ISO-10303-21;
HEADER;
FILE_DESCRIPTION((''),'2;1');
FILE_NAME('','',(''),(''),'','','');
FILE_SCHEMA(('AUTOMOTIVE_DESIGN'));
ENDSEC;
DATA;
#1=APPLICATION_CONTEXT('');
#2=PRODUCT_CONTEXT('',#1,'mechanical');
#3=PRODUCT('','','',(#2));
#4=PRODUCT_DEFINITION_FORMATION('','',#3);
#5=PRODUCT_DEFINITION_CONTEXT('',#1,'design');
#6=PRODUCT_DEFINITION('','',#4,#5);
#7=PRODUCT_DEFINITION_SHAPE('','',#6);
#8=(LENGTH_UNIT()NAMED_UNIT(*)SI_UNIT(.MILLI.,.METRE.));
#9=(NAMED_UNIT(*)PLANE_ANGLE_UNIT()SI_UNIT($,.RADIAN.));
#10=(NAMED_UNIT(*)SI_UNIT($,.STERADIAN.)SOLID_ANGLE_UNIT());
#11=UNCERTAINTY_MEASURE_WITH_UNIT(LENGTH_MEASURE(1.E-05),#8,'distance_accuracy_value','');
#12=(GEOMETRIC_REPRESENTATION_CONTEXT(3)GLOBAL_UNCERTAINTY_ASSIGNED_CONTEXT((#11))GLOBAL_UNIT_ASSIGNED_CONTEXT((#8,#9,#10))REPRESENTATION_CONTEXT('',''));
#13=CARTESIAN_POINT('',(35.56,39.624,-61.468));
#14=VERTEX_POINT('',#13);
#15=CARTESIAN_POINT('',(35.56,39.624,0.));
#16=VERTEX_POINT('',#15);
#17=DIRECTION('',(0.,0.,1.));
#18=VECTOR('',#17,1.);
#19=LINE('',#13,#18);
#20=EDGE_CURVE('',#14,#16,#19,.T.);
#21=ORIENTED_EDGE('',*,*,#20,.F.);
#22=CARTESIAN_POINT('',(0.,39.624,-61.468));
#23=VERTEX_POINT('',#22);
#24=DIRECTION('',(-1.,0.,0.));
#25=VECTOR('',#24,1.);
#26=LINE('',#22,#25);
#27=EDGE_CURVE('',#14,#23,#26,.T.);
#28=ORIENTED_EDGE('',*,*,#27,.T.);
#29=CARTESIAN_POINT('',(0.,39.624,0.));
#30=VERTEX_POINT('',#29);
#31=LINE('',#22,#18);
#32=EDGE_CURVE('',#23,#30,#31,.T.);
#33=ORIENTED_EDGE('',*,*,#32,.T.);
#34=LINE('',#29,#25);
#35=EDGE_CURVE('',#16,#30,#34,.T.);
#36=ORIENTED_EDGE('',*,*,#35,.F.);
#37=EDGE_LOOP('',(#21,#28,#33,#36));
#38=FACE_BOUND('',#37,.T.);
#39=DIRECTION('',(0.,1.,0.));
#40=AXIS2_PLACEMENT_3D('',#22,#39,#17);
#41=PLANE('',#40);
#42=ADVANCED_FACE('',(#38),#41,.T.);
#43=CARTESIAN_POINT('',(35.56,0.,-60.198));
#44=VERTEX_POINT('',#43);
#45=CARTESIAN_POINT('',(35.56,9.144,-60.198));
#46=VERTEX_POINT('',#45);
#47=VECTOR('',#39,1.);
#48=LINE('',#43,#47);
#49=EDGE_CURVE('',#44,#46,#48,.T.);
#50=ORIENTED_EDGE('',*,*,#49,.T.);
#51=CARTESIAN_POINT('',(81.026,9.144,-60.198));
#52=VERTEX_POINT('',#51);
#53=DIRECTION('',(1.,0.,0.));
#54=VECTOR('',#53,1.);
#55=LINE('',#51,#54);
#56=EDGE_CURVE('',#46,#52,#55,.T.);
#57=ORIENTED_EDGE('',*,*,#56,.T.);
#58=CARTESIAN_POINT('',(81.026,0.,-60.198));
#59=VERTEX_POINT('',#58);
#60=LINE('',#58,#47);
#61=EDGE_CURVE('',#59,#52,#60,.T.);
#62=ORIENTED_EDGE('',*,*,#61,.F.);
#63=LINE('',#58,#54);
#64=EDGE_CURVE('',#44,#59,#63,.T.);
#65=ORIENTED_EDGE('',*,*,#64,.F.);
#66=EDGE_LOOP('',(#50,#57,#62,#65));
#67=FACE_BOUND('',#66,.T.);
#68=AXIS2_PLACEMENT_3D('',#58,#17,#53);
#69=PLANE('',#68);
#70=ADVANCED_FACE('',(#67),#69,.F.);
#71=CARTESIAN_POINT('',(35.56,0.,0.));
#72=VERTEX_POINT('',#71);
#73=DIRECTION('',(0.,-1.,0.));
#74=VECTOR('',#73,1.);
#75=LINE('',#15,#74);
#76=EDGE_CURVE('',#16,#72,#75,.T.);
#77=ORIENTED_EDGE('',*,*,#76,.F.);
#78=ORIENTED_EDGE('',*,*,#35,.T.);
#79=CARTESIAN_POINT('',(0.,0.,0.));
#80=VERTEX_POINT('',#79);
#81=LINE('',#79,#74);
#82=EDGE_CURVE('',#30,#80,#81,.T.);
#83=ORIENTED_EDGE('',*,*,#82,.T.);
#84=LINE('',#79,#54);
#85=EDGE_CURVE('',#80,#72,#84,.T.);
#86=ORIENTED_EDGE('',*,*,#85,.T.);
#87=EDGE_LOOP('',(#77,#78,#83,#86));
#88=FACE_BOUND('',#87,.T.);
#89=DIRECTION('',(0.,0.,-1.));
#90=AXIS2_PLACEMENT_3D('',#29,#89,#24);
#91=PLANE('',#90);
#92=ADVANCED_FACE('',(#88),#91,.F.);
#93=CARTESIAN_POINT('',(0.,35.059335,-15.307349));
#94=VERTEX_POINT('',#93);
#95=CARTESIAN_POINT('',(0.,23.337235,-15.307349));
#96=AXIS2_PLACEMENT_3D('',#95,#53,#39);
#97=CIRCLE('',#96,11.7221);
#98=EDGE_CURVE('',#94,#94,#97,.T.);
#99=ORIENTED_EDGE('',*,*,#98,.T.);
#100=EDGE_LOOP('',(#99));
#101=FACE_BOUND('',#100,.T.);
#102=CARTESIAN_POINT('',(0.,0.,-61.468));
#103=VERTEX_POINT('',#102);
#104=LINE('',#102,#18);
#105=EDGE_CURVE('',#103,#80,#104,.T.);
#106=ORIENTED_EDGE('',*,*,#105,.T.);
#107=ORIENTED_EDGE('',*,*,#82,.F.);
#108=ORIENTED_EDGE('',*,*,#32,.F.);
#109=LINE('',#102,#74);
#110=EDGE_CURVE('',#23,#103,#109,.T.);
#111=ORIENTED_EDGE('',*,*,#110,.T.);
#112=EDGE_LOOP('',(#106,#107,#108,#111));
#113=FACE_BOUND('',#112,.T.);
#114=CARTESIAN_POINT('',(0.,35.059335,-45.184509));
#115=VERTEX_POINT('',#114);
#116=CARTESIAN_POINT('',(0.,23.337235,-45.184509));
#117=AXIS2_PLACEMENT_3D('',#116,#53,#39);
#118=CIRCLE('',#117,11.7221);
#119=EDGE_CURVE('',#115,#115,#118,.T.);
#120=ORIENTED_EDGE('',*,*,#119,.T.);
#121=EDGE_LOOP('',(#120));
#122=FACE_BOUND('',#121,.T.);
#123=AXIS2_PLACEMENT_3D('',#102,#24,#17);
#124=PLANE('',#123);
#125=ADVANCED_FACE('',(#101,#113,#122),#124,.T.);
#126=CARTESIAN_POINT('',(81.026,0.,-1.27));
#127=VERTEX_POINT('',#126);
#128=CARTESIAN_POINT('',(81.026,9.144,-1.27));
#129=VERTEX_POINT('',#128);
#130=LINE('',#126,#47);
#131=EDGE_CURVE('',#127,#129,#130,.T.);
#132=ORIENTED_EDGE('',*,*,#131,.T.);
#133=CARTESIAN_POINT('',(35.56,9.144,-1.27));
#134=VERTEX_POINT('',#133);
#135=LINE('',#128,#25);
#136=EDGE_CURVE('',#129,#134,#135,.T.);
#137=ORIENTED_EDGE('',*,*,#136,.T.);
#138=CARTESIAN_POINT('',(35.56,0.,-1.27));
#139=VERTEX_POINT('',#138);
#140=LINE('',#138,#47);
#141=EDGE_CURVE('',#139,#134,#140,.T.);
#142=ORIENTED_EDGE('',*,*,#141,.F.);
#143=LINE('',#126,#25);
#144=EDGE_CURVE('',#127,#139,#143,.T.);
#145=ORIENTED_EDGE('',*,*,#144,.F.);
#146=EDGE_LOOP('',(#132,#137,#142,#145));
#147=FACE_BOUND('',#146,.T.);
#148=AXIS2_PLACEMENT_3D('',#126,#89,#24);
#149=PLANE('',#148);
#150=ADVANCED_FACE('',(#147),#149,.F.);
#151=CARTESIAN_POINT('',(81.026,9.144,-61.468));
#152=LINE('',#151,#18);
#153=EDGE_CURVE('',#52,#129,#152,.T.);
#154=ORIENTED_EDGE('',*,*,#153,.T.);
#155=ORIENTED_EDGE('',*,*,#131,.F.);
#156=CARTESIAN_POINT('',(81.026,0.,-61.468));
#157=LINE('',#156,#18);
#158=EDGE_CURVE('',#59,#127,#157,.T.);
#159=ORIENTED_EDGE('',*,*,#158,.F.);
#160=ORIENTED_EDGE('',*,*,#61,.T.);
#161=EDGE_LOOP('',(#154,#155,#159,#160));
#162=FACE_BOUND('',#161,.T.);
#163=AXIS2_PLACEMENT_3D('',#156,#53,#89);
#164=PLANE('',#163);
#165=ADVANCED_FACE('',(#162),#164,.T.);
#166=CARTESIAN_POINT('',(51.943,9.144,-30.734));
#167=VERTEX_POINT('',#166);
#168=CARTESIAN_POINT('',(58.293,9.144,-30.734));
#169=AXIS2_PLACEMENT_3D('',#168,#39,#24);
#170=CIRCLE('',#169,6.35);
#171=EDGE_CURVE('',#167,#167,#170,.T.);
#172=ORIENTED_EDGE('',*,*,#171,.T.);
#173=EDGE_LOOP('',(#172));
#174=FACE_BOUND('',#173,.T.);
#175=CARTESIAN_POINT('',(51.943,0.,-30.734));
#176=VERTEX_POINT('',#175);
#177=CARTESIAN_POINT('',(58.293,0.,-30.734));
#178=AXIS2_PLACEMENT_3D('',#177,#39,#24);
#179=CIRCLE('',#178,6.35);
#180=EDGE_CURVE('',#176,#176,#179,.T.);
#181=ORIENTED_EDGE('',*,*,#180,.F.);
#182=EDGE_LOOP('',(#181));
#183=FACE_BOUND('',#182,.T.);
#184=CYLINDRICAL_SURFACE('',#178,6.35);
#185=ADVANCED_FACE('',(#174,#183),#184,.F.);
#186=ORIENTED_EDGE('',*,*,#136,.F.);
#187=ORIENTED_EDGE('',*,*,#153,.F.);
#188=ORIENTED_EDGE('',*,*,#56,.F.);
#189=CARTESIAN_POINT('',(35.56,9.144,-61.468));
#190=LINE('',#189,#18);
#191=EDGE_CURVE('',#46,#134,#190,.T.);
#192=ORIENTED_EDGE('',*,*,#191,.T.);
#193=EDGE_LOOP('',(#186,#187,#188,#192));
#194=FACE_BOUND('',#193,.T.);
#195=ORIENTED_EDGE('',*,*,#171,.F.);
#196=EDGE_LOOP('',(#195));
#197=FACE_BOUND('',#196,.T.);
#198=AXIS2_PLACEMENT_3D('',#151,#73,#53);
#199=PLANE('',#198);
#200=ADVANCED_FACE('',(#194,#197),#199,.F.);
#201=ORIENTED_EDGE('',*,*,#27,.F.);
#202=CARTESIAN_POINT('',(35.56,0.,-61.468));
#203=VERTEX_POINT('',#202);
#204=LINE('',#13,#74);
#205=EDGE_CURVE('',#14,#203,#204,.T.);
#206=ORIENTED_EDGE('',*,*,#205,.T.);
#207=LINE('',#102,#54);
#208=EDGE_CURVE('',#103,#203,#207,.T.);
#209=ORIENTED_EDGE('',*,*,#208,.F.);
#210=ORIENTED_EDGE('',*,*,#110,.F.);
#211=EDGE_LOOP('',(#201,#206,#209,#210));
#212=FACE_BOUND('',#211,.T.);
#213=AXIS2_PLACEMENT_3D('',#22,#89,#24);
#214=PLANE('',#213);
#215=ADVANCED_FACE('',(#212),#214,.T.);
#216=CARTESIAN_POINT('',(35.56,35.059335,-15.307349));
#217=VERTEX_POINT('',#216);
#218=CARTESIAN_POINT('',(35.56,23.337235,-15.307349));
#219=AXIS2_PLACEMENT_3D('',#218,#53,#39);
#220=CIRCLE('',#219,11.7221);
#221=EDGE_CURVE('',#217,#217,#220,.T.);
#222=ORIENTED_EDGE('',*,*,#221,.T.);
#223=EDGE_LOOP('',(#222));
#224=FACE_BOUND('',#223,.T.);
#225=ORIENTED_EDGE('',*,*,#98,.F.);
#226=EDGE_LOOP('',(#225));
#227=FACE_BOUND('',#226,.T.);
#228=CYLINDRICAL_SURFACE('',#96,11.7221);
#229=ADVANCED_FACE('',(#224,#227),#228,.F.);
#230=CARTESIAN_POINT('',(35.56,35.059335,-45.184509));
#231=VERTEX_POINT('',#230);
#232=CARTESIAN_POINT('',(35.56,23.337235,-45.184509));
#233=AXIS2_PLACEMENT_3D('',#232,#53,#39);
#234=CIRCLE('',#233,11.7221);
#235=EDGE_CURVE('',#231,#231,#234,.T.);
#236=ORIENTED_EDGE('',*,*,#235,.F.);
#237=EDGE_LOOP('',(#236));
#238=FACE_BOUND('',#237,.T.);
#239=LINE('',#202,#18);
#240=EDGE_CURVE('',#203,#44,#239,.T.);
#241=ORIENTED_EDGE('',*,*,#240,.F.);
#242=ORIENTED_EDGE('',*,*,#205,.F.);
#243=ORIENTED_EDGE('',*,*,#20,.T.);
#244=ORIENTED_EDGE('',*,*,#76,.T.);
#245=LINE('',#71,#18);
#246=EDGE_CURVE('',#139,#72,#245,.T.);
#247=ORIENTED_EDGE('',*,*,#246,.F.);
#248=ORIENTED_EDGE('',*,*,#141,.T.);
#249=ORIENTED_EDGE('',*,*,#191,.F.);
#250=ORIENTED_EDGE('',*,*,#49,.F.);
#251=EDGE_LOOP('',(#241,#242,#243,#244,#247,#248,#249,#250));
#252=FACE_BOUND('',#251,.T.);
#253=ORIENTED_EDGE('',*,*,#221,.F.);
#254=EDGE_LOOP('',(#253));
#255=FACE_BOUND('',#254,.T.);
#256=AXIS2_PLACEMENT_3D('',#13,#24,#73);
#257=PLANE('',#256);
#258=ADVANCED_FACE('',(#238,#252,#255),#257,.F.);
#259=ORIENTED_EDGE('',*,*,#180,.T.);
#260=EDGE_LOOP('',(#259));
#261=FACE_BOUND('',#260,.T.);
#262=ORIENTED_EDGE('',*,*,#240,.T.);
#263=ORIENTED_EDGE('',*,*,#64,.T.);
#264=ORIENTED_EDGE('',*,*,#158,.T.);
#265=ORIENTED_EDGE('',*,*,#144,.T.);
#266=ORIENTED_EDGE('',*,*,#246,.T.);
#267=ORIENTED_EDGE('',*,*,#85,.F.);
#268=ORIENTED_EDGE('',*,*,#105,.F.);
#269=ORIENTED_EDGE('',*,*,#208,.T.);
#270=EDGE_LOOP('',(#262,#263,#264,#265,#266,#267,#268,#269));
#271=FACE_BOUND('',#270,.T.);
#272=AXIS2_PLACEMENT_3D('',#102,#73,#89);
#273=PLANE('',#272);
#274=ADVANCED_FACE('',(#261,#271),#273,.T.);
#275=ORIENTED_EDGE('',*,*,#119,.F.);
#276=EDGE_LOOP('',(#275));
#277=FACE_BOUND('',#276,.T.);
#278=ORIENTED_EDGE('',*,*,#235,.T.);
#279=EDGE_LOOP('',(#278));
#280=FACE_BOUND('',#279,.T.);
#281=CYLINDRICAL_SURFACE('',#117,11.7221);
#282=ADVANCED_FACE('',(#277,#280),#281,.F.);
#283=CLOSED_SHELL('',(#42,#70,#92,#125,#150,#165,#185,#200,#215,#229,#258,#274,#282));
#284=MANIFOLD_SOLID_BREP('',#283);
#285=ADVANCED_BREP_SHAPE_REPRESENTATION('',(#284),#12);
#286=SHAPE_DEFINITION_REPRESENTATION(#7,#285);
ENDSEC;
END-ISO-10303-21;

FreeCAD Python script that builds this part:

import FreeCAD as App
import Part
import Sketcher
Q = App.Units.Quantity


def add_polygon(sketch, points):
    """Adds a closed chain of lines whose ends are joined by coincident constraints."""
    first, n = sketch.GeometryCount, len(points)
    for a, b in zip(points, points[1:] + points[:1]):
        sketch.addGeometry(Part.LineSegment(App.Vector(*a, 0), App.Vector(*b, 0)), False)
    for i in range(n):
        sketch.addConstraint(Sketcher.Constraint("Coincident", first + i, 2, first + (i + 1) % n, 1))

doc = App.newDocument("Part")
body = doc.addObject("PartDesign::Body", "Body")

# Sketch on XY plane
sketch1 = body.newObject("Sketcher::SketchObject", "Sketch")
sketch1.AttachmentSupport = (doc.getObject("XY_Plane"), [""])
sketch1.MapMode = "FlatFace"
add_polygon(sketch1, [(0, 39.624), (0, 0), (81.026, 0), (81.026, 39.624)])  # lines 0-3
sketch1.addConstraint(Sketcher.Constraint("Vertical", 0))
sketch1.addConstraint(Sketcher.Constraint("Horizontal", 1))
sketch1.addConstraint(Sketcher.Constraint("Vertical", 2))
sketch1.addConstraint(Sketcher.Constraint("Horizontal", 3))
sketch1.addConstraint(Sketcher.Constraint("Coincident", 0, 2, -1, 1))
sketch1.addConstraint(Sketcher.Constraint("DistanceX", 1, 1, 1, 2, Q("3.19 in")))
sketch1.addConstraint(Sketcher.Constraint("DistanceY", 0, 2, 0, 1, Q("1.56 in")))
pad1 = body.newObject("PartDesign::Pad", "Pad")
pad1.Profile = sketch1
pad1.Length = Q("2.42 in")
pad1.Reversed = True

# Sketch on XY plane
sketch2 = body.newObject("Sketcher::SketchObject", "Sketch001")
sketch2.AttachmentSupport = (doc.getObject("XY_Plane"), [""])
sketch2.MapMode = "FlatFace"
add_polygon(sketch2, [(35.56, 39.624), (35.56, 9.144), (81.026, 9.144), (81.026, 39.624)])  # lines 0-3
sketch2.addConstraint(Sketcher.Constraint("Vertical", 0))
sketch2.addConstraint(Sketcher.Constraint("Horizontal", 1))
sketch2.addConstraint(Sketcher.Constraint("Vertical", 2))
sketch2.addConstraint(Sketcher.Constraint("Horizontal", 3))
sketch2.addConstraint(Sketcher.Constraint("DistanceY", 0, 2, 0, 1, Q("1.2 in")))
sketch2.addConstraint(Sketcher.Constraint("DistanceX", 1, 1, 1, 2, Q("1.79 in")))
sketch2.addConstraint(Sketcher.Constraint("DistanceX", -1, 1, 0, 2, Q("1.4 in")))
sketch2.addConstraint(Sketcher.Constraint("DistanceY", -1, 1, 0, 2, Q("0.36 in")))
pocket1 = body.newObject("PartDesign::Pocket", "Pocket")
pocket1.Profile = sketch2
pocket1.Type = "ThroughAll"

# Sketch on XZ plane
sketch3 = body.newObject("Sketcher::SketchObject", "Sketch002")
sketch3.AttachmentSupport = (doc.getObject("XZ_Plane"), [""])
sketch3.MapMode = "FlatFace"
sketch3.AttachmentOffset = App.Placement(App.Vector(0, 0, -0.36 * 25.4), App.Rotation())
add_polygon(sketch3, [(35.56, -1.27), (35.56, 0), (81.026, 0), (81.026, -1.27)])  # lines 0-3
add_polygon(sketch3, [(35.56, -61.468), (35.56, -60.198), (81.026, -60.198), (81.026, -61.468)])  # lines 4-7
sketch3.addConstraint(Sketcher.Constraint("Vertical", 0))
sketch3.addConstraint(Sketcher.Constraint("Horizontal", 1))
sketch3.addConstraint(Sketcher.Constraint("Vertical", 2))
sketch3.addConstraint(Sketcher.Constraint("Horizontal", 3))
sketch3.addConstraint(Sketcher.Constraint("Vertical", 4))
sketch3.addConstraint(Sketcher.Constraint("Horizontal", 5))
sketch3.addConstraint(Sketcher.Constraint("Vertical", 6))
sketch3.addConstraint(Sketcher.Constraint("Horizontal", 7))
sketch3.addConstraint(Sketcher.Constraint("PointOnObject", 0, 2, -1))
sketch3.addConstraint(Sketcher.Constraint("Vertical", 3, 2, 4, 2))
sketch3.addConstraint(Sketcher.Constraint("Vertical", 2, 2, 5, 2))
sketch3.addConstraint(Sketcher.Constraint("Equal", 2, 4))
sketch3.addConstraint(Sketcher.Constraint("DistanceX", 1, 1, 1, 2, Q("1.79 in")))
sketch3.addConstraint(Sketcher.Constraint("DistanceY", 0, 1, 0, 2, Q("0.05 in")))
sketch3.addConstraint(Sketcher.Constraint("DistanceX", -1, 1, 0, 2, Q("1.4 in")))
sketch3.addConstraint(Sketcher.Constraint("DistanceY", 4, 2, -1, 1, Q("2.37 in")))
pocket2 = body.newObject("PartDesign::Pocket", "Pocket001")
pocket2.Profile = sketch3
pocket2.Type = "ThroughAll"
pocket2.Reversed = True

# Sketch on XZ plane
sketch4 = body.newObject("Sketcher::SketchObject", "Sketch003")
sketch4.AttachmentSupport = (doc.getObject("XZ_Plane"), [""])
sketch4.MapMode = "FlatFace"
sketch4.AttachmentOffset = App.Placement(App.Vector(0, 0, -0.36 * 25.4), App.Rotation())
sketch4.addGeometry(Part.Circle(App.Vector(58.293, -30.734, 0), App.Vector(0, 0, 1), 6.35), False)
sketch4.addConstraint(Sketcher.Constraint("Diameter", 0, Q("0.5 in")))
sketch4.addConstraint(Sketcher.Constraint("DistanceY", 0, 3, -1, 1, Q("1.21 in")))
sketch4.addConstraint(Sketcher.Constraint("DistanceX", -1, 1, 0, 3, Q("2.295 in")))
pocket3 = body.newObject("PartDesign::Pocket", "Pocket002")
pocket3.Profile = sketch4
pocket3.Type = "ThroughAll"
pocket3.Reversed = True

# Sketch on YZ plane
sketch5 = body.newObject("Sketcher::SketchObject", "Sketch004")
sketch5.AttachmentSupport = (doc.getObject("YZ_Plane"), [""])
sketch5.MapMode = "FlatFace"
sketch5.AttachmentOffset = App.Placement(App.Vector(0, 0, 1.4 * 25.4), App.Rotation())
sketch5.addGeometry(Part.Circle(App.Vector(23.337235, -15.307349, 0), App.Vector(0, 0, 1), 11.7221), False)
sketch5.addGeometry(Part.Circle(App.Vector(23.337235, -45.184509, 0), App.Vector(0, 0, 1), 11.7221), False)
sketch5.addConstraint(Sketcher.Constraint("Equal", 0, 1))
sketch5.addConstraint(Sketcher.Constraint("Vertical", 0, 3, 1, 3))
sketch5.addConstraint(Sketcher.Constraint("Diameter", 0, Q("0.923 in")))
sketch5.addConstraint(Sketcher.Constraint("DistanceY", 0, 3, -1, 1, 15.307349))
sketch5.addConstraint(Sketcher.Constraint("DistanceY", 1, 3, -1, 1, 45.184509))
sketch5.addConstraint(Sketcher.Constraint("DistanceX", -1, 1, 0, 3, 23.337235))
pocket4 = body.newObject("PartDesign::Pocket", "Pocket003")
pocket4.Profile = sketch5
pocket4.Type = "ThroughAll"

doc.recompute()
